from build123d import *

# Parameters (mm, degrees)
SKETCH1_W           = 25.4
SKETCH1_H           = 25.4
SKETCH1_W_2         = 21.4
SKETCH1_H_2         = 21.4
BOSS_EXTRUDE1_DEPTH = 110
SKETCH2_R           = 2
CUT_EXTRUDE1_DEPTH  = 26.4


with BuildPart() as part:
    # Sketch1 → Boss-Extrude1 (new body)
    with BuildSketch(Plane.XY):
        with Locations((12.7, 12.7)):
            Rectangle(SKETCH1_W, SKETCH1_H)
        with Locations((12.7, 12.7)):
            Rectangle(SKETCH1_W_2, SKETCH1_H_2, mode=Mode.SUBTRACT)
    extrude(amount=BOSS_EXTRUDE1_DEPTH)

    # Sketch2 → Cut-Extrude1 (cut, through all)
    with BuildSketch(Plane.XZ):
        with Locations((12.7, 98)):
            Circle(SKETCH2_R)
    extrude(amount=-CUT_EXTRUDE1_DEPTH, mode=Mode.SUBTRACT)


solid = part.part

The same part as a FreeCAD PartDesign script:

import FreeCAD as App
import Part
import Sketcher

V = App.Vector


def add_polygon(sketch, points):
    """Adds a closed chain of lines whose ends are joined by coincident constraints."""
    first, n = sketch.GeometryCount, len(points)
    for a, b in zip(points, points[1:] + points[:1]):
        sketch.addGeometry(Part.LineSegment(App.Vector(*a, 0), App.Vector(*b, 0)), False)
    for i in range(n):
        sketch.addConstraint(Sketcher.Constraint("Coincident", first + i, 2, first + (i + 1) % n, 1))

doc = App.newDocument("Part")
body = doc.addObject("PartDesign::Body", "Body")

sketch1 = doc.addObject("Sketcher::SketchObject", "Sketch")
body.addObject(sketch1)
sketch1.AttachmentSupport = (doc.XY_Plane, [""])
sketch1.MapMode = "FlatFace"
add_polygon(sketch1, [(0, 25.4), (0, 0), (25.4, 0), (25.4, 25.4)])
add_polygon(sketch1, [(23.4, 2), (2, 2), (2, 23.4), (23.4, 23.4)])
sketch1.addConstraint([
    Sketcher.Constraint("Vertical", 0),
    Sketcher.Constraint("Horizontal", 1),
    Sketcher.Constraint("Vertical", 2),
    Sketcher.Constraint("Horizontal", 3),
    Sketcher.Constraint("Horizontal", 4),
    Sketcher.Constraint("Vertical", 5),
    Sketcher.Constraint("Horizontal", 6),
    Sketcher.Constraint("Vertical", 7),
    Sketcher.Constraint("Coincident", 0, 2, -1, 1),
    Sketcher.Constraint("Equal", 3, 0),
    Sketcher.Constraint("Equal", 6, 5),
    Sketcher.Constraint("DistanceX", 1, 1, 1, 2, 25.4),
    Sketcher.Constraint("DistanceX", 4, 2, 4, 1, 21.4),
    Sketcher.Constraint("DistanceX", -1, 1, 4, 2, 2.0),
    Sketcher.Constraint("DistanceY", -1, 1, 4, 2, 2.0),
])
pad1 = doc.addObject("PartDesign::Pad", "Pad")
body.addObject(pad1)
pad1.Profile = sketch1
pad1.Length = 110

sketch2 = doc.addObject("Sketcher::SketchObject", "Sketch001")
body.addObject(sketch2)
sketch2.AttachmentSupport = (doc.XZ_Plane, [""])
sketch2.MapMode = "FlatFace"
sketch2.addGeometry(Part.Circle(V(12.7, 98, 0), V(0, 0, 1), 2), False)
sketch2.addConstraint([
    Sketcher.Constraint("Diameter", 0, 4.0),
    Sketcher.Constraint("DistanceY", -1, 1, 0, 3, 98.0),
    Sketcher.Constraint("DistanceX", -1, 1, 0, 3, 12.7),
])
pocket1 = doc.addObject("PartDesign::Pocket", "Pocket")
body.addObject(pocket1)
pocket1.Profile = sketch2
pocket1.Type = "ThroughAll"

doc.recompute()
